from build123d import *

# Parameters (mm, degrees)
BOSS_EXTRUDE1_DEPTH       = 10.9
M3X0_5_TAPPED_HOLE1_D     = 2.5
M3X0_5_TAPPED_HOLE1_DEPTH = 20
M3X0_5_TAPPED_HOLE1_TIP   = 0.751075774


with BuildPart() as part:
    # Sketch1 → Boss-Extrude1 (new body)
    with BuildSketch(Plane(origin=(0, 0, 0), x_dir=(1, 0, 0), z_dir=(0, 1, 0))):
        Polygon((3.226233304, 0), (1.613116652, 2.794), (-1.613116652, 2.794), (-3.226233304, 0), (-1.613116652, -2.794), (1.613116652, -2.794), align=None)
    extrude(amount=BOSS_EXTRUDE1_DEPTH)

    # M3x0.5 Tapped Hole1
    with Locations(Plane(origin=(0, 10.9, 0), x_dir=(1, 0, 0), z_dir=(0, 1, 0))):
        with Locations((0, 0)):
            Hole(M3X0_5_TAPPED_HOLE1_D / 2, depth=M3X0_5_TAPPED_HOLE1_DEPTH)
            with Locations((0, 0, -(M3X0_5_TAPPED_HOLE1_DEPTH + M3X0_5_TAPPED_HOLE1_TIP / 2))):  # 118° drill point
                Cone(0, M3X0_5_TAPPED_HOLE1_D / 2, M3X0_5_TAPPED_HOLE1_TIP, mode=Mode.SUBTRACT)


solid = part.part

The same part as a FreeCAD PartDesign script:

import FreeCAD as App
import Part
import Sketcher

V = App.Vector
Q = App.Units.Quantity


def add_polygon(sketch, points):
    """Adds a closed chain of lines whose ends are joined by coincident constraints."""
    first, n = sketch.GeometryCount, len(points)
    for a, b in zip(points, points[1:] + points[:1]):
        sketch.addGeometry(Part.LineSegment(App.Vector(*a, 0), App.Vector(*b, 0)), False)
    for i in range(n):
        sketch.addConstraint(Sketcher.Constraint("Coincident", first + i, 2, first + (i + 1) % n, 1))

doc = App.newDocument("Part")
body = doc.addObject("PartDesign::Body", "Body")

# Sketch on XZ plane
sketch1 = body.newObject("Sketcher::SketchObject", "Sketch")
sketch1.AttachmentSupport = (doc.getObject("XZ_Plane"), [""])
sketch1.MapMode = "FlatFace"
add_polygon(sketch1, [(3.226233, 0), (1.613117, -2.794), (-1.613117, -2.794), (-3.226233, 0), (-1.613117, 2.794), (1.613117, 2.794)])  # lines 0-5
sketch1.addConstraint([
    Sketcher.Constraint("Horizontal", 1),
    Sketcher.Constraint("Horizontal", 4),
    Sketcher.Constraint("Symmetric", 0, 2, 3, 2, -1, 1),
    Sketcher.Constraint("Symmetric", 2, 2, 5, 2, -1, 1),
    Sketcher.Constraint("PointOnObject", 2, 2, -1),
    Sketcher.Constraint("Parallel", 2, 5),
    Sketcher.Constraint("Vertical", 1, 2, 3, 2),
    Sketcher.Constraint("Angle", 0, Q("-120 deg")),
    Sketcher.Constraint("DistanceY", 0, 2, -1, 1, Q("2.794 mm")),
    Sketcher.Constraint("DistanceX", 1, 2, 1, 1, Q("3.226233 mm")),
])
pad1 = body.newObject("PartDesign::Pad", "Pad")
pad1.Profile = sketch1
pad1.Length = 10.9
pad1.Reversed = True

# Sketch on XZ plane
sketch2 = body.newObject("Sketcher::SketchObject", "Sketch001")
sketch2.AttachmentSupport = (doc.getObject("XZ_Plane"), [""])
sketch2.MapMode = "FlatFace"
sketch2.AttachmentOffset = App.Placement(V(0, 0, -10.9), App.Rotation())
sketch2.addGeometry(Part.Circle(V(0, 0, 0), V(0, 0, 1), 1.25), False)
sketch2.addConstraint([
    Sketcher.Constraint("Coincident", 0, 3, -1, 1),
    Sketcher.Constraint("Diameter", 0, Q("2.5 mm")),
])
doc.recompute()
hole = body.newObject("PartDesign::Hole", "Hole")
hole.Profile = sketch2
hole.ThreadType = "None"
hole.Diameter = 2.5
hole.DepthType = "Dimension"
hole.Depth = 20
hole.DrillPoint = "Angled"
hole.DrillPointAngle = 118
hole.Reversed = True

doc.recompute()
